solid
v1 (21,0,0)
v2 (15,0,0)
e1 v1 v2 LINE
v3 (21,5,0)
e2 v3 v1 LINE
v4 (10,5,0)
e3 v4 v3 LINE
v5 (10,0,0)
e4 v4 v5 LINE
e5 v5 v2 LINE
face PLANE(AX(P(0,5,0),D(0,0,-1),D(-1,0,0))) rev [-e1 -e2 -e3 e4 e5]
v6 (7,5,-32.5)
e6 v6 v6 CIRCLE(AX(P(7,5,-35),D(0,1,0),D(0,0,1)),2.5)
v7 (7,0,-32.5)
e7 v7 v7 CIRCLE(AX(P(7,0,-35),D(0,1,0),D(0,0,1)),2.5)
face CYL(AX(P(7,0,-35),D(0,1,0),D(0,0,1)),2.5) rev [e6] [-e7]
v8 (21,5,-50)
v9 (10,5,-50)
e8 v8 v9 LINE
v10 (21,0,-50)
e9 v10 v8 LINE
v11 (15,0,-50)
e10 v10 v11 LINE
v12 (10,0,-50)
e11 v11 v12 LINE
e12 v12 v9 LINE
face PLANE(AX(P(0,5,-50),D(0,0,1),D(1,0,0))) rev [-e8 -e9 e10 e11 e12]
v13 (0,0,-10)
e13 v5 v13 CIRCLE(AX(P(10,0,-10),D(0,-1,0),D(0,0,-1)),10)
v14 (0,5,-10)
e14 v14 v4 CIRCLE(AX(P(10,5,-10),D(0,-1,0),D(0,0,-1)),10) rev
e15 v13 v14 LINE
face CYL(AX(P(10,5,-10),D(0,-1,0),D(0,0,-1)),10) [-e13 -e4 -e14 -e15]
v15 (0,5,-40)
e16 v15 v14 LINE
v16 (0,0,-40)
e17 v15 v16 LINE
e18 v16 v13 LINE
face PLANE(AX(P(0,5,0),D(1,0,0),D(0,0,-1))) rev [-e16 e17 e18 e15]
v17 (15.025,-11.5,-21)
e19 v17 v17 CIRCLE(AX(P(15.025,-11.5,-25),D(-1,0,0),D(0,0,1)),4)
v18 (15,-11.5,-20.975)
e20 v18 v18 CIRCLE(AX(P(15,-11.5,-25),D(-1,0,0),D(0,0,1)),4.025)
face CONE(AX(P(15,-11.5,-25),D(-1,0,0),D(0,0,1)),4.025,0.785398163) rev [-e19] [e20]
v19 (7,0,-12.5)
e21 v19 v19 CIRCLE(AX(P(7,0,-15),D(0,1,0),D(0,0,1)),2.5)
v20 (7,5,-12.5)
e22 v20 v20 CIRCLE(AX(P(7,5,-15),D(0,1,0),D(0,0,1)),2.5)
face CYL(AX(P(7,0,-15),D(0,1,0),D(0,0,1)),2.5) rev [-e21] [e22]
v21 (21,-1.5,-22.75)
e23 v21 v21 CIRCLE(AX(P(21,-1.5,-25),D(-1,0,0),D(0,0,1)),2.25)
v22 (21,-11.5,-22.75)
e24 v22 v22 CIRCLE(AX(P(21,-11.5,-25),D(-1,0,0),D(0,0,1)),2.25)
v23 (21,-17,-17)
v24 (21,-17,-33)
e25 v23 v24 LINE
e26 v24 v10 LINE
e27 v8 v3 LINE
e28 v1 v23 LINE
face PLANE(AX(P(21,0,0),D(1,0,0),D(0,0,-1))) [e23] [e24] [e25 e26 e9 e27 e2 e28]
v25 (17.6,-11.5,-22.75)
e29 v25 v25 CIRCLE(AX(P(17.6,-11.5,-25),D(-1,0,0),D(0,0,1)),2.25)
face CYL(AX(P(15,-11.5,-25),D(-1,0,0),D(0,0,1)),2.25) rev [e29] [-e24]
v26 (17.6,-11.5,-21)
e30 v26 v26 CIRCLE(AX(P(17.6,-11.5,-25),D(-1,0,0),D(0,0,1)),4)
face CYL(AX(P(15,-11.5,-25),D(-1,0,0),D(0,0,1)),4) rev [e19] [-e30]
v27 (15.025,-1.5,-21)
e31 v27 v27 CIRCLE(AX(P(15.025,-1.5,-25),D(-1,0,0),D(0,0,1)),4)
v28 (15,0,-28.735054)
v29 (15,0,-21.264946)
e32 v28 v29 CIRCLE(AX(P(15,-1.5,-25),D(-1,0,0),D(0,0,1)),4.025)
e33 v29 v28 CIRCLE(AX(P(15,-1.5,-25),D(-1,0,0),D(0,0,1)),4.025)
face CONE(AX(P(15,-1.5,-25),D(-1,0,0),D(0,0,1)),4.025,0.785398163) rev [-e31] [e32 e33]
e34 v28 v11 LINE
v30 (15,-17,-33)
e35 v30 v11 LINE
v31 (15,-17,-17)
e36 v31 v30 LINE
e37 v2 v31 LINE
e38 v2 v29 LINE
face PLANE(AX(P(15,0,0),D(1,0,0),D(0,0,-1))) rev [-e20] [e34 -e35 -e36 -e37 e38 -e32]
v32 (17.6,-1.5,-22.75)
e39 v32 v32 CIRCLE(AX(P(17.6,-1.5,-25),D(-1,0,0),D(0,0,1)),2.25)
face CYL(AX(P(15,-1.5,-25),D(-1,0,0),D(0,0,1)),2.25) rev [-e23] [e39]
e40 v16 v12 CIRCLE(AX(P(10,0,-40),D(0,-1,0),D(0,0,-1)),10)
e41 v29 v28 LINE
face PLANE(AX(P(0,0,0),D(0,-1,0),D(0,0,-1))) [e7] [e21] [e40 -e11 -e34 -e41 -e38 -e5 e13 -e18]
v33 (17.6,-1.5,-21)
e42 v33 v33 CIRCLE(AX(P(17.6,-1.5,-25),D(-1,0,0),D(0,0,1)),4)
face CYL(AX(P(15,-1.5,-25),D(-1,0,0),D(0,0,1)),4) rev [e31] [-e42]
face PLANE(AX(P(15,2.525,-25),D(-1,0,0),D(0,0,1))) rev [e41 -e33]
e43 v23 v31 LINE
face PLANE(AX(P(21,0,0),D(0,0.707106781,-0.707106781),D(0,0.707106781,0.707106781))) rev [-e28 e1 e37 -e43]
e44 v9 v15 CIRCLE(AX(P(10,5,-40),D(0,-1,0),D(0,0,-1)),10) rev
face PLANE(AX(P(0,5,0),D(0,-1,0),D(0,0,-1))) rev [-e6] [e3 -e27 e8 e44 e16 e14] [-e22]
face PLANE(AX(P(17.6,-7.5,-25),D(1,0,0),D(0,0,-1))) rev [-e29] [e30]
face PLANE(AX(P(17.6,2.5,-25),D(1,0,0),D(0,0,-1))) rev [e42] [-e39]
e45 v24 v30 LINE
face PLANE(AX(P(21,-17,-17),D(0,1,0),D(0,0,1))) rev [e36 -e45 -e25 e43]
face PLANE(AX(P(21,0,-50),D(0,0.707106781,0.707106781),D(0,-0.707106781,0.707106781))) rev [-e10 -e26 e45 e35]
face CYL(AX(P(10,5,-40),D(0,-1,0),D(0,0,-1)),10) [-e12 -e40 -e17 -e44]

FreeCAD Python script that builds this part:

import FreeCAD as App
import Part
import Sketcher

V = App.Vector
Q = App.Units.Quantity


def edges_at(feature, points):
    """Names of the edges that pass closest to the given points."""
    edges = feature.Shape.Edges
    near = lambda p: min(range(len(edges)), key=lambda i: edges[i].distToShape(Part.Vertex(*p))[0])
    return sorted({f"Edge{near(p) + 1}" for p in points})

doc = App.newDocument("Part")
body = doc.addObject("PartDesign::Body", "Body")

sketch1 = doc.addObject("Sketcher::SketchObject", "Sketch")
body.addObject(sketch1)
sketch1.AttachmentSupport = (doc.XZ_Plane, [""])
sketch1.MapMode = "FlatFace"
sketch1.addGeometry(Part.LineSegment(V(0, -50, 0), V(0, 0, 0)), False)
sketch1.addGeometry(Part.LineSegment(V(0, 0, 0), V(15, 0, 0)), False)
sketch1.addGeometry(Part.LineSegment(V(15, 0, 0), V(15, -50, 0)), False)
sketch1.addGeometry(Part.LineSegment(V(15, -50, 0), V(0, -50, 0)), False)
sketch1.addConstraint(Sketcher.Constraint("Coincident", 0, 2, 1, 1))
sketch1.addConstraint(Sketcher.Constraint("Coincident", 1, 2, 2, 1))
sketch1.addConstraint(Sketcher.Constraint("Coincident", 2, 2, 3, 1))
sketch1.addConstraint(Sketcher.Constraint("Coincident", 3, 2, 0, 1))
sketch1.addConstraint(Sketcher.Constraint("Vertical", 0))
sketch1.addConstraint(Sketcher.Constraint("Horizontal", 1))
sketch1.addConstraint(Sketcher.Constraint("Vertical", 2))
sketch1.addConstraint(Sketcher.Constraint("Horizontal", 3))
sketch1.addConstraint(Sketcher.Constraint("Coincident", 0, 2, -1, 1))
sketch1.addConstraint(Sketcher.Constraint("DistanceX", 1, 1, 1, 2, Q("15 mm")))
sketch1.addConstraint(Sketcher.Constraint("DistanceY", 0, 1, 0, 2, Q("50 mm")))
pad1 = doc.addObject("PartDesign::Pad", "Pad")
body.addObject(pad1)
pad1.Profile = sketch1
pad1.Length = 5
pad1.Reversed = True

sketch2 = doc.addObject("Sketcher::SketchObject", "Sketch001")
body.addObject(sketch2)
sketch2.AttachmentSupport = (doc.XZ_Plane, [""])
sketch2.MapMode = "FlatFace"
sketch2.AttachmentOffset = App.Placement(V(0, 0, -5), App.Rotation())
sketch2.addGeometry(Part.Circle(V(7, -35, 0), V(0, 0, 1), 2.5), False)
sketch2.addGeometry(Part.Circle(V(7, -15, 0), V(0, 0, 1), 2.5), False)
sketch2.addConstraint(Sketcher.Constraint("Equal", 0, 1))
sketch2.addConstraint(Sketcher.Constraint("Vertical", 0, 3, 1, 3))
sketch2.addConstraint(Sketcher.Constraint("Diameter", 0, Q("5 mm")))
sketch2.addConstraint(Sketcher.Constraint("DistanceX", -1, 1, 0, 3, Q("7 mm")))
sketch2.addConstraint(Sketcher.Constraint("DistanceY", 0, 3, -1, 1, Q("35 mm")))
sketch2.addConstraint(Sketcher.Constraint("DistanceY", 1, 3, -1, 1, Q("15 mm")))
pocket1 = doc.addObject("PartDesign::Pocket", "Pocket")
body.addObject(pocket1)
pocket1.Profile = sketch2
pocket1.Type = "ThroughAll"
pocket1.Reversed = True
doc.recompute()

fillet = doc.addObject("PartDesign::Fillet", "Fillet")
body.addObject(fillet)
fillet.Base = (pocket1, edges_at(pocket1, [(0, 2.5, -50), (0, 2.5, 0)]))
fillet.Radius = 10

sketch3 = doc.addObject("Sketcher::SketchObject", "Sketch002")
body.addObject(sketch3)
sketch3.AttachmentSupport = (doc.YZ_Plane, [""])
sketch3.MapMode = "FlatFace"
sketch3.AttachmentOffset = App.Placement(V(0, 0, 15), App.Rotation())
sketch3.addGeometry(Part.LineSegment(V(5, -50, 0), V(5, 0, 0)), False)
sketch3.addGeometry(Part.LineSegment(V(5, 0, 0), V(0, 0, 0)), False)
sketch3.addGeometry(Part.LineSegment(V(0, 0, 0), V(-17, -17, 0)), False)
sketch3.addGeometry(Part.LineSegment(V(-17, -17, 0), V(-17, -33, 0)), False)
sketch3.addGeometry(Part.LineSegment(V(-17, -33, 0), V(0, -50, 0)), False)
sketch3.addGeometry(Part.LineSegment(V(0, -50, 0), V(5, -50, 0)), False)
sketch3.addConstraint(Sketcher.Constraint("Coincident", 0, 2, 1, 1))
sketch3.addConstraint(Sketcher.Constraint("Coincident", 1, 2, 2, 1))
sketch3.addConstraint(Sketcher.Constraint("Coincident", 2, 2, 3, 1))
sketch3.addConstraint(Sketcher.Constraint("Coincident", 3, 2, 4, 1))
sketch3.addConstraint(Sketcher.Constraint("Coincident", 4, 2, 5, 1))
sketch3.addConstraint(Sketcher.Constraint("Coincident", 5, 2, 0, 1))
sketch3.addConstraint(Sketcher.Constraint("Vertical", 0))
sketch3.addConstraint(Sketcher.Constraint("Horizontal", 1))
sketch3.addConstraint(Sketcher.Constraint("Vertical", 3))
sketch3.addConstraint(Sketcher.Constraint("Horizontal", 5))
sketch3.addConstraint(Sketcher.Constraint("Coincident", 1, 2, -1, 1))
sketch3.addConstraint(Sketcher.Constraint("PointOnObject", 4, 2, -2))
sketch3.addConstraint(Sketcher.Constraint("Perpendicular", 2, 4))
sketch3.addConstraint(Sketcher.Constraint("Equal", 2, 4))
sketch3.addConstraint(Sketcher.Constraint("DistanceX", 1, 2, 1, 1, Q("5 mm")))
sketch3.addConstraint(Sketcher.Constraint("DistanceY", 0, 1, 0, 2, Q("50 mm")))
sketch3.addConstraint(Sketcher.Constraint("DistanceY", 3, 2, 3, 1, Q("16 mm")))
pad2 = doc.addObject("PartDesign::Pad", "Pad001")
body.addObject(pad2)
pad2.Profile = sketch3
pad2.Length = 6

sketch4 = doc.addObject("Sketcher::SketchObject", "Sketch003")
body.addObject(sketch4)
sketch4.AttachmentSupport = (doc.XZ_Plane, [""])
sketch4.MapMode = "FlatFace"
sketch4.AttachmentOffset = App.Placement(V(0, 0, 11.5), App.Rotation())
sketch4.addGeometry(Part.LineSegment(V(21, -25, 0), V(15, -25, 0)), False)
sketch4.addGeometry(Part.LineSegment(V(15, -25, 0), V(15, -20.975, 0)), False)
sketch4.addGeometry(Part.LineSegment(V(15, -20.975, 0), V(15.025, -21, 0)), False)
sketch4.addGeometry(Part.LineSegment(V(15.025, -21, 0), V(17.6, -21, 0)), False)
sketch4.addGeometry(Part.LineSegment(V(17.6, -21, 0), V(17.6, -22.75, 0)), False)
sketch4.addGeometry(Part.LineSegment(V(17.6, -22.75, 0), V(21, -22.75, 0)), False)
sketch4.addGeometry(Part.LineSegment(V(21, -22.75, 0), V(21, -25, 0)), False)
sketch4.addGeometry(Part.LineSegment(V(15, -25, 0), V(21, -25, 0)), True)
sketch4.addConstraint(Sketcher.Constraint("Coincident", 0, 2, 1, 1))
sketch4.addConstraint(Sketcher.Constraint("Coincident", 1, 2, 2, 1))
sketch4.addConstraint(Sketcher.Constraint("Coincident", 2, 2, 3, 1))
sketch4.addConstraint(Sketcher.Constraint("Coincident", 3, 2, 4, 1))
sketch4.addConstraint(Sketcher.Constraint("Coincident", 4, 2, 5, 1))
sketch4.addConstraint(Sketcher.Constraint("Coincident", 5, 2, 6, 1))
sketch4.addConstraint(Sketcher.Constraint("Coincident", 6, 2, 0, 1))
sketch4.addConstraint(Sketcher.Constraint("Horizontal", 0))
sketch4.addConstraint(Sketcher.Constraint("Vertical", 1))
sketch4.addConstraint(Sketcher.Constraint("Horizontal", 3))
sketch4.addConstraint(Sketcher.Constraint("Vertical", 4))
sketch4.addConstraint(Sketcher.Constraint("Horizontal", 5))
sketch4.addConstraint(Sketcher.Constraint("Vertical", 6))
sketch4.addConstraint(Sketcher.Constraint("Horizontal", 7))
sketch4.addConstraint(Sketcher.Constraint("Coincident", 7, 1, 0, 2))
sketch4.addConstraint(Sketcher.Constraint("Vertical", 5, 2, 7, 2))
sketch4.addConstraint(Sketcher.Constraint("DistanceX", 0, 2, 0, 1, Q("6 mm")))
sketch4.addConstraint(Sketcher.Constraint("Angle", 2, Q("-45 deg")))
sketch4.addConstraint(Sketcher.Constraint("DistanceX", 5, 1, 5, 2, Q("3.4 mm")))
sketch4.addConstraint(Sketcher.Constraint("DistanceX", -1, 1, 0, 2, Q("15 mm")))
sketch4.addConstraint(Sketcher.Constraint("DistanceY", 0, 2, -1, 1, Q("25 mm")))
sketch4.addConstraint(Sketcher.Constraint("DistanceY", 2, 2, -1, 1, Q("21 mm")))
sketch4.addConstraint(Sketcher.Constraint("DistanceY", 4, 2, 4, 1, Q("1.75 mm")))
sketch4.addConstraint(Sketcher.Constraint("DistanceX", 3, 1, 3, 2, Q("2.575 mm")))
groove = doc.addObject("PartDesign::Groove", "Groove")
body.addObject(groove)
groove.Profile = sketch4
groove.ReferenceAxis = (sketch4, ["Axis0"])
groove.Angle = 360
doc.recompute()

linearpattern = doc.addObject("PartDesign::LinearPattern", "LinearPattern")
body.addObject(linearpattern)
linearpattern.Originals = [groove]
linearpattern.Direction = (doc.Y_Axis, [""])
linearpattern.Mode = "offset"
linearpattern.Offset = 10
linearpattern.Occurrences = 2
body.Tip = linearpattern

doc.recompute()
